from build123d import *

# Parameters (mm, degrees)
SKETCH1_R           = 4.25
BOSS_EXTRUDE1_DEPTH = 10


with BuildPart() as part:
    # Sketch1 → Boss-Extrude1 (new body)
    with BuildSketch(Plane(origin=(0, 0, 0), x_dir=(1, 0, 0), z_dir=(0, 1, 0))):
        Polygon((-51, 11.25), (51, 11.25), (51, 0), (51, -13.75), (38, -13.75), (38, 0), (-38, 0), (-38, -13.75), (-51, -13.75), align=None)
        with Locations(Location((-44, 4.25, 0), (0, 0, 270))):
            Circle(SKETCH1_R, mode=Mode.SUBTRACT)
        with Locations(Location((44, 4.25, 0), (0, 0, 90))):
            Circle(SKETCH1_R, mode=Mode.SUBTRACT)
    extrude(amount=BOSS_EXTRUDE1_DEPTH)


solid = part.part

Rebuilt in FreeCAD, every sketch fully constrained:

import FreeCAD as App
import Part
import Sketcher
from FreeCAD import Vector

doc = App.newDocument("Part")
body = doc.addObject("PartDesign::Body", "Body")

sketch1 = body.newObject("Sketcher::SketchObject", "Sketch")
sketch1.AttachmentSupport = (doc.getObject("XZ_Plane"), [""])
sketch1.MapMode = "FlatFace"
sketch1.addGeometry([
    Part.LineSegment(Vector(51, -11.2, 0), Vector(-51, -11.2, 0)),
    Part.LineSegment(Vector(-51, -11.2, 0), Vector(-51, 13.8, 0)),
    Part.LineSegment(Vector(-51, 13.8, 0), Vector(-38, 13.8, 0)),
    Part.LineSegment(Vector(-38, 13.8, 0), Vector(-38, 0, 0)),
    Part.LineSegment(Vector(-38, 0, 0), Vector(38, 0, 0)),
    Part.LineSegment(Vector(38, 0, 0), Vector(38, 13.8, 0)),
    Part.LineSegment(Vector(38, 13.8, 0), Vector(51, 13.8, 0)),
    Part.LineSegment(Vector(51, 13.8, 0), Vector(51, -11.2, 0)),
    Part.Circle(Vector(44, -4.2, 0), Vector(0, 0, 1), 4.2),
    Part.Circle(Vector(-44, -4.2, 0), Vector(0, 0, 1), 4.2),
], False)
sketch1.addConstraint([
    Sketcher.Constraint("Coincident", 0, 2, 1, 1),
    Sketcher.Constraint("Coincident", 1, 2, 2, 1),
    Sketcher.Constraint("Coincident", 2, 2, 3, 1),
    Sketcher.Constraint("Coincident", 3, 2, 4, 1),
    Sketcher.Constraint("Coincident", 4, 2, 5, 1),
    Sketcher.Constraint("Coincident", 5, 2, 6, 1),
    Sketcher.Constraint("Coincident", 6, 2, 7, 1),
    Sketcher.Constraint("Coincident", 7, 2, 0, 1),
    Sketcher.Constraint("Horizontal", 0),
    Sketcher.Constraint("Vertical", 1),
    Sketcher.Constraint("Horizontal", 2),
    Sketcher.Constraint("Vertical", 3),
    Sketcher.Constraint("Horizontal", 4),
    Sketcher.Constraint("Vertical", 5),
    Sketcher.Constraint("Horizontal", 6),
    Sketcher.Constraint("Vertical", 7),
    Sketcher.Constraint("Equal", 8, 9),
    Sketcher.Constraint("Symmetric", 3, 2, 4, 2, -1, 1),
    Sketcher.Constraint("Symmetric", 8, 3, 9, 3, -2),
    Sketcher.Constraint("Symmetric", 1, 2, 6, 2, -2),
    Sketcher.Constraint("Diameter", 8, 8.5),
    Sketcher.Constraint("DistanceX", 0, 2, 0, 1, 102.0),
    Sketcher.Constraint("DistanceX", 2, 1, 2, 2, 13.0),
    Sketcher.Constraint("DistanceY", 1, 1, 1, 2, 25.0),
    Sketcher.Constraint("DistanceX", -1, 1, 8, 3, 44.0),
    Sketcher.Constraint("DistanceY", 0, 2, 9, 3, 7.0),
    Sketcher.Constraint("DistanceY", 3, 2, 3, 1, 13.75),
])
pad1 = body.newObject("PartDesign::Pad", "Pad")
pad1.Profile = sketch1
pad1.Length = 10
pad1.Reversed = True

doc.recompute()
